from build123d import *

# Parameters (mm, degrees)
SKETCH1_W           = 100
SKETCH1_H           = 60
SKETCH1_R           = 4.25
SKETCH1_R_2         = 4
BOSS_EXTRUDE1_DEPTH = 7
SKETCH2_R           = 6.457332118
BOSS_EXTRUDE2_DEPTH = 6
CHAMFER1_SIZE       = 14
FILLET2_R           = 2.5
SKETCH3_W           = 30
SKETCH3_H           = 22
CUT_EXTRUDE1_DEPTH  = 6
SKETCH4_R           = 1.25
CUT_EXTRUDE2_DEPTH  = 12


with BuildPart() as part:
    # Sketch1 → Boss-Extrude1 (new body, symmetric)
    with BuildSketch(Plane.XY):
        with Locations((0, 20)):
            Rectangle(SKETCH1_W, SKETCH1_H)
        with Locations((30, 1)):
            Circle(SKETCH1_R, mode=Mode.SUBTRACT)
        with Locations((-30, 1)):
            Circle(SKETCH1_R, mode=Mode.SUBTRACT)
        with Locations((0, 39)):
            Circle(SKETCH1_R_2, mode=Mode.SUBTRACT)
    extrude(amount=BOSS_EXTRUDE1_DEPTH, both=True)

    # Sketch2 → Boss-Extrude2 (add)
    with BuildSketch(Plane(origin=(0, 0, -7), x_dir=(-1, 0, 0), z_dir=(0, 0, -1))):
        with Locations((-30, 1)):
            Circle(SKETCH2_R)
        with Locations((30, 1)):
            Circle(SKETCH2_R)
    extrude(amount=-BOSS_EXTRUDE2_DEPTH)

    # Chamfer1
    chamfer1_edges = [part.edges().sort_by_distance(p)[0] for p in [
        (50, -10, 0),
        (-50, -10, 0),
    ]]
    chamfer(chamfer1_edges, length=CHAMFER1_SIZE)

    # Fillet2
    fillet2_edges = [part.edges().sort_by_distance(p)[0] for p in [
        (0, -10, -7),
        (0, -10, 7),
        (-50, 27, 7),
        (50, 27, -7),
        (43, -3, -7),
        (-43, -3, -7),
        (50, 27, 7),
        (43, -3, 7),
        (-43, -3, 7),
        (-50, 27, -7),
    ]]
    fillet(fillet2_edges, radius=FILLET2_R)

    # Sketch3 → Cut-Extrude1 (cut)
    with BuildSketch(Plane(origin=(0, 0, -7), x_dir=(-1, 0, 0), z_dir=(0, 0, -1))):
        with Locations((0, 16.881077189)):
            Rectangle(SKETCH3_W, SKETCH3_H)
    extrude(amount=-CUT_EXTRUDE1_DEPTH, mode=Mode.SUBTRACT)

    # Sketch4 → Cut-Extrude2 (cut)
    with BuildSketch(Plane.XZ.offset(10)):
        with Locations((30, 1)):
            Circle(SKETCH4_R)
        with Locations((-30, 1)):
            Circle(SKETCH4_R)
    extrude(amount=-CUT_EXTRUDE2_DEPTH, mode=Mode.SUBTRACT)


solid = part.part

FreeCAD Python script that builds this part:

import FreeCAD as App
import Part
import Sketcher
Q = App.Units.Quantity


def edges_at(feature, points):
    """Names of the edges that pass closest to the given points."""
    edges = feature.Shape.Edges
    near = lambda p: min(range(len(edges)), key=lambda i: edges[i].distToShape(Part.Vertex(*p))[0])
    return sorted({f"Edge{near(p) + 1}" for p in points})


def add_polygon(sketch, points):
    """Adds a closed chain of lines whose ends are joined by coincident constraints."""
    first, n = sketch.GeometryCount, len(points)
    for a, b in zip(points, points[1:] + points[:1]):
        sketch.addGeometry(Part.LineSegment(App.Vector(*a, 0), App.Vector(*b, 0)), False)
    for i in range(n):
        sketch.addConstraint(Sketcher.Constraint("Coincident", first + i, 2, first + (i + 1) % n, 1))

doc = App.newDocument("Part")
params = doc.addObject("Spreadsheet::Sheet", "Params")
for row, (alias, value) in enumerate([
    ("sketch1_diameter", "8 mm"),
    ("sketch1_diameter2", "8.5 mm"),
    ("sketch1_width", "100 mm"),
    ("sketch1_height", "60 mm"),
    ("pad1_length", "14 mm"),
    ("pad2_length", "6 mm"),
    ("chamfer_size", "14 mm"),
    ("fillet_radius", "2.5 mm"),
    ("sketch3_width", "30 mm"),
    ("sketch3_height", "22 mm"),
    ("pocket1_length", "6 mm"),
    ("sketch4_diameter", "2.5 mm"),
    ("pocket2_length", "12 mm"),
], start=1):
    params.set(f"A{row}", alias)
    params.set(f"B{row}", "=" + value)
    params.setAlias(f"B{row}", alias)

body = doc.addObject("PartDesign::Body", "Body")

# Sketch on XY plane
sketch1 = body.newObject("Sketcher::SketchObject", "Sketch")
sketch1.AttachmentSupport = (doc.getObject("XY_Plane"), [""])
sketch1.MapMode = "FlatFace"
add_polygon(sketch1, [(-50, 50), (-50, -10), (50, -10), (50, 50)])  # lines 0-3
sketch1.addGeometry(Part.Circle(App.Vector(-30, 1, 0), App.Vector(0, 0, 1), 4.2), False)  # 4
sketch1.addGeometry(Part.Circle(App.Vector(30, 1, 0), App.Vector(0, 0, 1), 4.2), False)  # 5
sketch1.addGeometry(Part.Circle(App.Vector(0, 39, 0), App.Vector(0, 0, 1), 4), False)  # 6
sketch1.addConstraint(Sketcher.Constraint("Vertical", 0))
sketch1.addConstraint(Sketcher.Constraint("Horizontal", 1))
sketch1.addConstraint(Sketcher.Constraint("Vertical", 2))
sketch1.addConstraint(Sketcher.Constraint("Horizontal", 3))
sketch1.addConstraint(Sketcher.Constraint("Equal", 4, 5))
sketch1.addConstraint(Sketcher.Constraint("Symmetric", 4, 3, 5, 3, -2))
sketch1.addConstraint(Sketcher.Constraint("PointOnObject", 6, 3, -2))
sketch1.addConstraint(Sketcher.Constraint("Diameter", 6, Q("8 mm")))
sketch1.addConstraint(Sketcher.Constraint("Diameter", 4, Q("8.5 mm")))
sketch1.addConstraint(Sketcher.Constraint("DistanceX", 1, 1, 1, 2, Q("100 mm")))
sketch1.addConstraint(Sketcher.Constraint("DistanceY", 0, 2, 0, 1, Q("60 mm")))
sketch1.addConstraint(Sketcher.Constraint("DistanceX", 4, 3, -1, 1, Q("30 mm")))
sketch1.addConstraint(Sketcher.Constraint("DistanceY", -1, 1, 4, 3, Q("1 mm")))
sketch1.addConstraint(Sketcher.Constraint("DistanceY", -1, 1, 6, 3, Q("39 mm")))
sketch1.addConstraint(Sketcher.Constraint("DistanceX", 0, 2, -1, 1, Q("50 mm")))
sketch1.addConstraint(Sketcher.Constraint("DistanceY", 0, 2, -1, 1, Q("10 mm")))
sketch1.setExpression("Constraints[11]", "Params.sketch1_diameter")
sketch1.setExpression("Constraints[12]", "Params.sketch1_diameter2")
sketch1.setExpression("Constraints[13]", "Params.sketch1_width")
sketch1.setExpression("Constraints[14]", "Params.sketch1_height")
pad1 = body.newObject("PartDesign::Pad", "Pad")
pad1.Profile = sketch1
pad1.setExpression("Length", "Params.pad1_length")
pad1.Midplane = True

# Sketch on XY plane
sketch2 = body.newObject("Sketcher::SketchObject", "Sketch001")
sketch2.AttachmentSupport = (doc.getObject("XY_Plane"), [""])
sketch2.MapMode = "FlatFace"
sketch2.AttachmentOffset = App.Placement(App.Vector(0, 0, -7), App.Rotation())
sketch2.addGeometry(Part.Circle(App.Vector(30, 1, 0), App.Vector(0, 0, 1), 6), False)
sketch2.addGeometry(Part.Circle(App.Vector(-30, 1, 0), App.Vector(0, 0, 1), 6), False)
sketch2.addConstraint(Sketcher.Constraint("Equal", 0, 1))
sketch2.addConstraint(Sketcher.Constraint("Symmetric", 0, 3, 1, 3, -2))
sketch2.addConstraint(Sketcher.Constraint("DistanceX", -1, 1, 0, 3, Q("30 mm")))
sketch2.addConstraint(Sketcher.Constraint("DistanceY", -1, 1, 0, 3, Q("1 mm")))
sketch2.addConstraint(Sketcher.Constraint("Diameter", 0, Q("12.914664 mm")))
pad2 = body.newObject("PartDesign::Pad", "Pad001")
pad2.Profile = sketch2
pad2.setExpression("Length", "Params.pad2_length")
doc.recompute()

chamfer = body.newObject("PartDesign::Chamfer", "Chamfer")
chamfer.Base = (pad2, edges_at(pad2, [(50, -10, 0), (-50, -10, 0)]))
chamfer.setExpression("Size", "Params.chamfer_size")
doc.recompute()

fillet = body.newObject("PartDesign::Fillet", "Fillet")
fillet.Base = (chamfer, edges_at(chamfer, [
    (0, -10, -7),
    (0, -10, 7),
    (-50, 27, 7),
    (50, 27, -7),
    (43, -3, -7),
    (-43, -3, -7),
    (50, 27, 7),
    (43, -3, 7),
    (-43, -3, 7),
    (-50, 27, -7),
]))
fillet.setExpression("Radius", "Params.fillet_radius")

# Sketch on XY plane
sketch3 = body.newObject("Sketcher::SketchObject", "Sketch002")
sketch3.AttachmentSupport = (doc.getObject("XY_Plane"), [""])
sketch3.MapMode = "FlatFace"
sketch3.AttachmentOffset = App.Placement(App.Vector(0, 0, -7), App.Rotation())
add_polygon(sketch3, [(15, 28), (15, 6), (-15, 6), (-15, 28)])  # lines 0-3
sketch3.addConstraint(Sketcher.Constraint("Vertical", 0))
sketch3.addConstraint(Sketcher.Constraint("Horizontal", 1))
sketch3.addConstraint(Sketcher.Constraint("Vertical", 2))
sketch3.addConstraint(Sketcher.Constraint("Horizontal", 3))
sketch3.addConstraint(Sketcher.Constraint("DistanceX", 1, 2, 1, 1, Q("30 mm")))
sketch3.addConstraint(Sketcher.Constraint("DistanceY", 0, 2, 0, 1, Q("22 mm")))
sketch3.addConstraint(Sketcher.Constraint("DistanceX", -1, 1, 0, 2, Q("15 mm")))
sketch3.addConstraint(Sketcher.Constraint("DistanceY", -1, 1, 0, 2, Q("5.881077 mm")))
sketch3.setExpression("Constraints[8]", "Params.sketch3_width")
sketch3.setExpression("Constraints[9]", "Params.sketch3_height")
pocket1 = body.newObject("PartDesign::Pocket", "Pocket")
pocket1.Profile = sketch3
pocket1.setExpression("Length", "Params.pocket1_length")
pocket1.Reversed = True

# Sketch on XZ plane
sketch4 = body.newObject("Sketcher::SketchObject", "Sketch003")
sketch4.AttachmentSupport = (doc.getObject("XZ_Plane"), [""])
sketch4.MapMode = "FlatFace"
sketch4.AttachmentOffset = App.Placement(App.Vector(0, 0, 10), App.Rotation())
sketch4.addGeometry(Part.Circle(App.Vector(30, 1, 0), App.Vector(0, 0, 1), 1.2), False)
sketch4.addGeometry(Part.Circle(App.Vector(-30, 1, 0), App.Vector(0, 0, 1), 1.2), False)
sketch4.addConstraint(Sketcher.Constraint("Equal", 0, 1))
sketch4.addConstraint(Sketcher.Constraint("Symmetric", 0, 3, 1, 3, -2))
sketch4.addConstraint(Sketcher.Constraint("Diameter", 0, Q("2.5 mm")))
sketch4.addConstraint(Sketcher.Constraint("DistanceX", -1, 1, 0, 3, Q("30 mm")))
sketch4.addConstraint(Sketcher.Constraint("DistanceY", -1, 1, 0, 3, Q("1 mm")))
sketch4.setExpression("Constraints[2]", "Params.sketch4_diameter")
pocket2 = body.newObject("PartDesign::Pocket", "Pocket001")
pocket2.Profile = sketch4
pocket2.setExpression("Length", "Params.pocket2_length")

doc.recompute()
